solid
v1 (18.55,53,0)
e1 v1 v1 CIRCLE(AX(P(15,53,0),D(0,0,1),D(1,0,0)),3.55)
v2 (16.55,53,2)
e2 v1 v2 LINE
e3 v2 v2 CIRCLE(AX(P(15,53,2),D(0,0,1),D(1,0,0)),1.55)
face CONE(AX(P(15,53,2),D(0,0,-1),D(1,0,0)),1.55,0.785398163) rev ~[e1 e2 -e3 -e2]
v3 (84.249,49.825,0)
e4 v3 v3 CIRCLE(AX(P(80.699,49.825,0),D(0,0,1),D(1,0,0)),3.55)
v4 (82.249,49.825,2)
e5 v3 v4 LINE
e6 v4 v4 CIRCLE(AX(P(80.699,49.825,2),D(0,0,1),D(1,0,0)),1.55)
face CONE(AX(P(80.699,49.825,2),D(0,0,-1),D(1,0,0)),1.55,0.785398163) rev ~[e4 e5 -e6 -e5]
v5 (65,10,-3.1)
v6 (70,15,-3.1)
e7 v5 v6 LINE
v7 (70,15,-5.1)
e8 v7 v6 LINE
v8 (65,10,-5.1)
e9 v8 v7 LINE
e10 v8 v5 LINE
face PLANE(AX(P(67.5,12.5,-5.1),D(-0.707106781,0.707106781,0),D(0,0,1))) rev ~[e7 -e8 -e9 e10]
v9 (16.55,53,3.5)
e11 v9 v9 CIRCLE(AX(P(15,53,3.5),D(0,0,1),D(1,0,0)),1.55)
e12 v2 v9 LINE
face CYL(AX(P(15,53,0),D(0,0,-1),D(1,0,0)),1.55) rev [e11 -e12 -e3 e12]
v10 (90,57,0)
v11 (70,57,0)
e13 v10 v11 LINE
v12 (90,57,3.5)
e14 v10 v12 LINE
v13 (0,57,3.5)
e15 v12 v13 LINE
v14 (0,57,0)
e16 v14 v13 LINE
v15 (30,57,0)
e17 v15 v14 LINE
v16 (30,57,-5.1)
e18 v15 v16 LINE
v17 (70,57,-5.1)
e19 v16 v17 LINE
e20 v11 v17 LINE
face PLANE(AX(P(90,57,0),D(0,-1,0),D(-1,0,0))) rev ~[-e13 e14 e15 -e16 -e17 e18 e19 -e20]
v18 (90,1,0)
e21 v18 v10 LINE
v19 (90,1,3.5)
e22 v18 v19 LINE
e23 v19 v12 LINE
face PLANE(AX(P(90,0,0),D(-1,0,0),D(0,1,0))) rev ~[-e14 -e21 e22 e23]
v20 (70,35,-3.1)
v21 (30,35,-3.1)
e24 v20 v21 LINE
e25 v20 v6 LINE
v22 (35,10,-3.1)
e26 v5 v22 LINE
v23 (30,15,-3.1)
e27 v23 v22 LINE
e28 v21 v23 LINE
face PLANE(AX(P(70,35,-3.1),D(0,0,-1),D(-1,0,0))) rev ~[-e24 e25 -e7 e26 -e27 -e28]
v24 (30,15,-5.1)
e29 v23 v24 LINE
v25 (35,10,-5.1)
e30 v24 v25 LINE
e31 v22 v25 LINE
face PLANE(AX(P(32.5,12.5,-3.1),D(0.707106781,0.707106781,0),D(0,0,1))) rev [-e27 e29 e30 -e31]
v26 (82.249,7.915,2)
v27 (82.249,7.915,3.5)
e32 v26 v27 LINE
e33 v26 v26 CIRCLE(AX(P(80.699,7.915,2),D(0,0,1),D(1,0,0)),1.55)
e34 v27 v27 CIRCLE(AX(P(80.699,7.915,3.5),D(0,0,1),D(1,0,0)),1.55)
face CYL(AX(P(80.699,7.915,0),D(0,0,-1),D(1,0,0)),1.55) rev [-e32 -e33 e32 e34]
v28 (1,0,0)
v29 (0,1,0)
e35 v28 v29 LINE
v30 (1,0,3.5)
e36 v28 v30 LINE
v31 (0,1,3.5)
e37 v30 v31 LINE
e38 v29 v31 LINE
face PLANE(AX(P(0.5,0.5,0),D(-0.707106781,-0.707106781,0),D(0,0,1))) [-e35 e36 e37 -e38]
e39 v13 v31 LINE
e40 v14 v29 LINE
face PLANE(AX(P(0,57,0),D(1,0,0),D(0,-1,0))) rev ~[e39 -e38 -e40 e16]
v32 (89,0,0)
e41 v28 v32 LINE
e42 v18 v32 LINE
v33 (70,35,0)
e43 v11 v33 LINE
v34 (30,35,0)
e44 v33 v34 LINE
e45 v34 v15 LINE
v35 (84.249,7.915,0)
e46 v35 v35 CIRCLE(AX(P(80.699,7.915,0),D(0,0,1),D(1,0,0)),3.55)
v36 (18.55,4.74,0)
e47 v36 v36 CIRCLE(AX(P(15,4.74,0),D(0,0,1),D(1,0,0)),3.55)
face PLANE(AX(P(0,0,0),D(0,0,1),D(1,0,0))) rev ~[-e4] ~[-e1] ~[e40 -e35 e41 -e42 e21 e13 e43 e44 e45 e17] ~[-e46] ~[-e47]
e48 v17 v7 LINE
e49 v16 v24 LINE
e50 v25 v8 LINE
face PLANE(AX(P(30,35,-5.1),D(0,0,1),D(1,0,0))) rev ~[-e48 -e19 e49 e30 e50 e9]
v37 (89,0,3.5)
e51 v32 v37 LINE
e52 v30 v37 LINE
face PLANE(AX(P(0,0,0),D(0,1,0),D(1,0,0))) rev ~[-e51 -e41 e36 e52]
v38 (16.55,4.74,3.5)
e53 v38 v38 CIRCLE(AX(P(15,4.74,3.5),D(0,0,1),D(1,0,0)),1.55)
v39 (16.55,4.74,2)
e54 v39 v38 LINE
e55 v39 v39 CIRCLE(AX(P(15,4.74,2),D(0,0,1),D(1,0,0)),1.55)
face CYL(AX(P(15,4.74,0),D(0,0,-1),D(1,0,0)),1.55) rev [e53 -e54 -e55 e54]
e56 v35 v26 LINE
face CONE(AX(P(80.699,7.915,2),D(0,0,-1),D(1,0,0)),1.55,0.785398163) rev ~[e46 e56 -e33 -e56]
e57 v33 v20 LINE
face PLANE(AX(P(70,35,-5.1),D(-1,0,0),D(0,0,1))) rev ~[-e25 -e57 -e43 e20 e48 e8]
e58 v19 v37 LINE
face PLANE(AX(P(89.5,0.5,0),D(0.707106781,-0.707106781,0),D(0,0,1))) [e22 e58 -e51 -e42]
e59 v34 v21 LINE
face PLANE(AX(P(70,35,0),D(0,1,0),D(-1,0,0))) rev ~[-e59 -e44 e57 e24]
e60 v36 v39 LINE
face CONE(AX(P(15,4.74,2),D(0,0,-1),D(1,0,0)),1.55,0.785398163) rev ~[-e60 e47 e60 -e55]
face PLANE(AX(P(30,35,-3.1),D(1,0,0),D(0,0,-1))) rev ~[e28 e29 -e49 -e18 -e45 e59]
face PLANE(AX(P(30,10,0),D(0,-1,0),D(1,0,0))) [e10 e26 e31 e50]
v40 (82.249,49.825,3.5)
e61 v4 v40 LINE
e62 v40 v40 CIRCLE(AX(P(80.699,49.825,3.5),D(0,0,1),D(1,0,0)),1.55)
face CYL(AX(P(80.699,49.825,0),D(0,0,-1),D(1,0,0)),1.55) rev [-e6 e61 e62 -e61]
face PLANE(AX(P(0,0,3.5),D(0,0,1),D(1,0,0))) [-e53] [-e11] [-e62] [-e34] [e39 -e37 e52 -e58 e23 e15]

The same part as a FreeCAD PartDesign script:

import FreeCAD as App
import Part
import Sketcher

V = App.Vector
Q = App.Units.Quantity


def edges_at(feature, points):
    """Names of the edges that pass closest to the given points."""
    edges = feature.Shape.Edges
    near = lambda p: min(range(len(edges)), key=lambda i: edges[i].distToShape(Part.Vertex(*p))[0])
    return sorted({f"Edge{near(p) + 1}" for p in points})


def add_polygon(sketch, points):
    """Adds a closed chain of lines whose ends are joined by coincident constraints."""
    first, n = sketch.GeometryCount, len(points)
    for a, b in zip(points, points[1:] + points[:1]):
        sketch.addGeometry(Part.LineSegment(App.Vector(*a, 0), App.Vector(*b, 0)), False)
    for i in range(n):
        sketch.addConstraint(Sketcher.Constraint("Coincident", first + i, 2, first + (i + 1) % n, 1))

doc = App.newDocument("Part")
body = doc.addObject("PartDesign::Body", "Body")

# Sketch on XY plane
sketch1 = body.newObject("Sketcher::SketchObject", "Sketch")
sketch1.AttachmentSupport = (doc.getObject("XY_Plane"), [""])
sketch1.MapMode = "FlatFace"
add_polygon(sketch1, [(0, 57), (0, 0), (90, 0), (90, 57)])  # lines 0-3
sketch1.addGeometry(Part.Circle(V(15, 4.74, 0), V(0, 0, 1), 1.55), False)  # 4
sketch1.addGeometry(Part.Circle(V(80.699, 7.915, 0), V(0, 0, 1), 1.55), False)  # 5
sketch1.addGeometry(Part.Circle(V(15, 53, 0), V(0, 0, 1), 1.55), False)  # 6
sketch1.addGeometry(Part.Circle(V(80.699, 49.825, 0), V(0, 0, 1), 1.55), False)  # 7
sketch1.addConstraint(Sketcher.Constraint("Vertical", 0))
sketch1.addConstraint(Sketcher.Constraint("Horizontal", 1))
sketch1.addConstraint(Sketcher.Constraint("Vertical", 2))
sketch1.addConstraint(Sketcher.Constraint("Horizontal", 3))
sketch1.addConstraint(Sketcher.Constraint("Coincident", 0, 2, -1, 1))
sketch1.addConstraint(Sketcher.Constraint("Equal", 4, 5))
sketch1.addConstraint(Sketcher.Constraint("Equal", 5, 6))
sketch1.addConstraint(Sketcher.Constraint("Equal", 6, 7))
sketch1.addConstraint(Sketcher.Constraint("Vertical", 4, 3, 6, 3))
sketch1.addConstraint(Sketcher.Constraint("Vertical", 5, 3, 7, 3))
sketch1.addConstraint(Sketcher.Constraint("Diameter", 4, Q("3.1 mm")))
sketch1.addConstraint(Sketcher.Constraint("DistanceX", 1, 1, 1, 2, Q("90 mm")))
sketch1.addConstraint(Sketcher.Constraint("DistanceY", 0, 2, 0, 1, Q("57 mm")))
sketch1.addConstraint(Sketcher.Constraint("DistanceX", -1, 1, 4, 3, Q("15 mm")))
sketch1.addConstraint(Sketcher.Constraint("DistanceY", 6, 3, 2, 2, Q("4 mm")))
sketch1.addConstraint(Sketcher.Constraint("DistanceY", 4, 3, 6, 3, Q("48.26 mm")))
sketch1.addConstraint(Sketcher.Constraint("DistanceY", 5, 3, 7, 3, Q("41.91 mm")))
sketch1.addConstraint(Sketcher.Constraint("DistanceX", -1, 1, 5, 3, Q("80.699 mm")))
sketch1.addConstraint(Sketcher.Constraint("DistanceY", 7, 3, 2, 2, Q("7.175 mm")))
pad1 = body.newObject("PartDesign::Pad", "Pad")
pad1.Profile = sketch1
pad1.Length = 3.5

# Sketch on XY plane
sketch2 = body.newObject("Sketcher::SketchObject", "Sketch001")
sketch2.AttachmentSupport = (doc.getObject("XY_Plane"), [""])
sketch2.MapMode = "FlatFace"
add_polygon(sketch2, [(70, 57), (70, 35), (30, 35), (30, 57)])  # lines 0-3
sketch2.addConstraint(Sketcher.Constraint("Vertical", 0))
sketch2.addConstraint(Sketcher.Constraint("Horizontal", 1))
sketch2.addConstraint(Sketcher.Constraint("Vertical", 2))
sketch2.addConstraint(Sketcher.Constraint("Horizontal", 3))
sketch2.addConstraint(Sketcher.Constraint("DistanceX", 1, 2, 1, 1, Q("40 mm")))
sketch2.addConstraint(Sketcher.Constraint("DistanceY", -1, 1, 0, 2, Q("35 mm")))
sketch2.addConstraint(Sketcher.Constraint("DistanceY", 0, 2, 0, 1, Q("22 mm")))
sketch2.addConstraint(Sketcher.Constraint("DistanceX", -1, 1, 0, 2, Q("70 mm")))
pad2 = body.newObject("PartDesign::Pad", "Pad001")
pad2.Profile = sketch2
pad2.Length = 5.1
pad2.Reversed = True

# Sketch on XZ plane
sketch3 = body.newObject("Sketcher::SketchObject", "Sketch002")
sketch3.AttachmentSupport = (doc.getObject("XZ_Plane"), [""])
sketch3.MapMode = "FlatFace"
sketch3.AttachmentOffset = App.Placement(V(0, 0, -35), App.Rotation())
add_polygon(sketch3, [(30, -3.1), (30, -5.1), (70, -5.1), (70, -3.1)])  # lines 0-3
sketch3.addConstraint(Sketcher.Constraint("Vertical", 0))
sketch3.addConstraint(Sketcher.Constraint("Horizontal", 1))
sketch3.addConstraint(Sketcher.Constraint("Vertical", 2))
sketch3.addConstraint(Sketcher.Constraint("Horizontal", 3))
sketch3.addConstraint(Sketcher.Constraint("DistanceY", 2, 2, -1, 1, Q("3.1 mm")))
sketch3.addConstraint(Sketcher.Constraint("DistanceX", 1, 1, 1, 2, Q("40 mm")))
sketch3.addConstraint(Sketcher.Constraint("DistanceY", 0, 2, 0, 1, Q("2 mm")))
sketch3.addConstraint(Sketcher.Constraint("DistanceX", -1, 1, 0, 2, Q("30 mm")))
pad3 = body.newObject("PartDesign::Pad", "Pad002")
pad3.Profile = sketch3
pad3.Length = 25
doc.recompute()

chamfer = body.newObject("PartDesign::Chamfer", "Chamfer")
chamfer.Base = (pad3, edges_at(pad3, [(70, 10, -4.1), (30, 10, -4.1)]))
chamfer.Size = 5
doc.recompute()

chamfer2 = body.newObject("PartDesign::Chamfer", "Chamfer001")
chamfer2.Base = (chamfer, edges_at(chamfer, [(90, 0, 1.75), (0, 0, 1.75)]))
chamfer2.Size = 1
doc.recompute()

chamfer3 = body.newObject("PartDesign::Chamfer", "Chamfer002")
chamfer3.Base = (chamfer2, edges_at(chamfer2, [
    (13.45, 53, 0),
    (13.45, 4.74, 0),
    (79.149, 49.825, 0),
    (79.149, 7.915, 0),
]))
chamfer3.Size = 2

doc.recompute()
